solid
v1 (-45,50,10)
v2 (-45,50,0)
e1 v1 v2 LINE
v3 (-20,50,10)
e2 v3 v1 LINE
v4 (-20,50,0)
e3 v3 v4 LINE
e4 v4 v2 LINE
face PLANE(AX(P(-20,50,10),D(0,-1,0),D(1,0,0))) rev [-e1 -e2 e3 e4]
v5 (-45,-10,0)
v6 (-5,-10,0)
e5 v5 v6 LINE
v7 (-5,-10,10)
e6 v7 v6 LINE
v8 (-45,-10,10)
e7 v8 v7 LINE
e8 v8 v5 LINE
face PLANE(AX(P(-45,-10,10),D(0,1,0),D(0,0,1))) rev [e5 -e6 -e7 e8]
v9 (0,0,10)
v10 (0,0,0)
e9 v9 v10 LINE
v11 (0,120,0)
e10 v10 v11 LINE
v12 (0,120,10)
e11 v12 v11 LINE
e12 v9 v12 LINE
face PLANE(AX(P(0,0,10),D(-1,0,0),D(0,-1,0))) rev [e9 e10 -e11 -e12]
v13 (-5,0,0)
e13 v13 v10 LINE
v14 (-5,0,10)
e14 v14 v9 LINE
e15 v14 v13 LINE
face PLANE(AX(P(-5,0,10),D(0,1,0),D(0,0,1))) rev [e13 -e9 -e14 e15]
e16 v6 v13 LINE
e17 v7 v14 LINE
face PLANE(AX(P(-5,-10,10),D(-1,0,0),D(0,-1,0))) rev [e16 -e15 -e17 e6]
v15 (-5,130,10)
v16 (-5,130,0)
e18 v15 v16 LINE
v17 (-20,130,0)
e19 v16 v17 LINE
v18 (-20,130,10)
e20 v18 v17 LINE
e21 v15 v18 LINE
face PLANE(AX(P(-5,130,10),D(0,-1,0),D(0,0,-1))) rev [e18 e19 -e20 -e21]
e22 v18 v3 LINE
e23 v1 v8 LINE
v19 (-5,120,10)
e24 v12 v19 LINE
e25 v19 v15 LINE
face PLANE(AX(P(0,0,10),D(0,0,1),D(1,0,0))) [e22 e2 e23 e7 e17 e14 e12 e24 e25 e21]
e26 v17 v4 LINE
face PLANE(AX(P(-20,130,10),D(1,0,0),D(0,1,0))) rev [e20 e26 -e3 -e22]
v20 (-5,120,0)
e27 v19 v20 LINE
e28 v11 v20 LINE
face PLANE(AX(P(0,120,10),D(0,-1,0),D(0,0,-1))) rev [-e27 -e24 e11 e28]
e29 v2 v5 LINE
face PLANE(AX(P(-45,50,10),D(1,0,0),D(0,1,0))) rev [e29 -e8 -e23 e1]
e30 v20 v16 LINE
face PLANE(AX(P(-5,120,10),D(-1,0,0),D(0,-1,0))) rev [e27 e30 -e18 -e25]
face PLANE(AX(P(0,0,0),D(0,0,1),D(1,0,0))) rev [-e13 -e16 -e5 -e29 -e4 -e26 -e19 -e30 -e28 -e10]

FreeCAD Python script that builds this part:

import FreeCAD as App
import Part
import Sketcher


def add_polygon(sketch, points):
    """Adds a closed chain of lines whose ends are joined by coincident constraints."""
    first, n = sketch.GeometryCount, len(points)
    for a, b in zip(points, points[1:] + points[:1]):
        sketch.addGeometry(Part.LineSegment(App.Vector(*a, 0), App.Vector(*b, 0)), False)
    for i in range(n):
        sketch.addConstraint(Sketcher.Constraint("Coincident", first + i, 2, first + (i + 1) % n, 1))

doc = App.newDocument("Part")
body = doc.addObject("PartDesign::Body", "Body")

# Sketch on XY plane
sketch1 = doc.addObject("Sketcher::SketchObject", "Sketch")
body.addObject(sketch1)
sketch1.AttachmentSupport = (doc.XY_Plane, [""])
sketch1.MapMode = "FlatFace"
add_polygon(sketch1, [(0, 120), (-5, 120), (-5, 130), (-20, 130), (-20, 50), (-45, 50), (-45, -10), (-5, -10), (-5, 0), (0, 0)])  # lines 0-9
sketch1.addConstraint([
    Sketcher.Constraint("Horizontal", 0),
    Sketcher.Constraint("Vertical", 1),
    Sketcher.Constraint("Horizontal", 2),
    Sketcher.Constraint("Vertical", 3),
    Sketcher.Constraint("Horizontal", 4),
    Sketcher.Constraint("Vertical", 5),
    Sketcher.Constraint("Horizontal", 6),
    Sketcher.Constraint("Vertical", 7),
    Sketcher.Constraint("Horizontal", 8),
    Sketcher.Constraint("Vertical", 9),
    Sketcher.Constraint("Coincident", 8, 2, -1, 1),
    Sketcher.Constraint("Vertical", 1, 2, 6, 2),
    Sketcher.Constraint("Equal", 1, 7),
    Sketcher.Constraint("DistanceX", 0, 2, 0, 1, 5.0),
    Sketcher.Constraint("DistanceX", 2, 2, 2, 1, 15.0),
    Sketcher.Constraint("DistanceX", 4, 2, 4, 1, 25.0),
    Sketcher.Constraint("DistanceY", 1, 1, 1, 2, 10.0),
    Sketcher.Constraint("DistanceY", 3, 2, 3, 1, 80.0),
    Sketcher.Constraint("DistanceY", 5, 2, 5, 1, 60.0),
])
pad1 = doc.addObject("PartDesign::Pad", "Pad")
body.addObject(pad1)
pad1.Profile = sketch1
pad1.Length = 10

doc.recompute()
